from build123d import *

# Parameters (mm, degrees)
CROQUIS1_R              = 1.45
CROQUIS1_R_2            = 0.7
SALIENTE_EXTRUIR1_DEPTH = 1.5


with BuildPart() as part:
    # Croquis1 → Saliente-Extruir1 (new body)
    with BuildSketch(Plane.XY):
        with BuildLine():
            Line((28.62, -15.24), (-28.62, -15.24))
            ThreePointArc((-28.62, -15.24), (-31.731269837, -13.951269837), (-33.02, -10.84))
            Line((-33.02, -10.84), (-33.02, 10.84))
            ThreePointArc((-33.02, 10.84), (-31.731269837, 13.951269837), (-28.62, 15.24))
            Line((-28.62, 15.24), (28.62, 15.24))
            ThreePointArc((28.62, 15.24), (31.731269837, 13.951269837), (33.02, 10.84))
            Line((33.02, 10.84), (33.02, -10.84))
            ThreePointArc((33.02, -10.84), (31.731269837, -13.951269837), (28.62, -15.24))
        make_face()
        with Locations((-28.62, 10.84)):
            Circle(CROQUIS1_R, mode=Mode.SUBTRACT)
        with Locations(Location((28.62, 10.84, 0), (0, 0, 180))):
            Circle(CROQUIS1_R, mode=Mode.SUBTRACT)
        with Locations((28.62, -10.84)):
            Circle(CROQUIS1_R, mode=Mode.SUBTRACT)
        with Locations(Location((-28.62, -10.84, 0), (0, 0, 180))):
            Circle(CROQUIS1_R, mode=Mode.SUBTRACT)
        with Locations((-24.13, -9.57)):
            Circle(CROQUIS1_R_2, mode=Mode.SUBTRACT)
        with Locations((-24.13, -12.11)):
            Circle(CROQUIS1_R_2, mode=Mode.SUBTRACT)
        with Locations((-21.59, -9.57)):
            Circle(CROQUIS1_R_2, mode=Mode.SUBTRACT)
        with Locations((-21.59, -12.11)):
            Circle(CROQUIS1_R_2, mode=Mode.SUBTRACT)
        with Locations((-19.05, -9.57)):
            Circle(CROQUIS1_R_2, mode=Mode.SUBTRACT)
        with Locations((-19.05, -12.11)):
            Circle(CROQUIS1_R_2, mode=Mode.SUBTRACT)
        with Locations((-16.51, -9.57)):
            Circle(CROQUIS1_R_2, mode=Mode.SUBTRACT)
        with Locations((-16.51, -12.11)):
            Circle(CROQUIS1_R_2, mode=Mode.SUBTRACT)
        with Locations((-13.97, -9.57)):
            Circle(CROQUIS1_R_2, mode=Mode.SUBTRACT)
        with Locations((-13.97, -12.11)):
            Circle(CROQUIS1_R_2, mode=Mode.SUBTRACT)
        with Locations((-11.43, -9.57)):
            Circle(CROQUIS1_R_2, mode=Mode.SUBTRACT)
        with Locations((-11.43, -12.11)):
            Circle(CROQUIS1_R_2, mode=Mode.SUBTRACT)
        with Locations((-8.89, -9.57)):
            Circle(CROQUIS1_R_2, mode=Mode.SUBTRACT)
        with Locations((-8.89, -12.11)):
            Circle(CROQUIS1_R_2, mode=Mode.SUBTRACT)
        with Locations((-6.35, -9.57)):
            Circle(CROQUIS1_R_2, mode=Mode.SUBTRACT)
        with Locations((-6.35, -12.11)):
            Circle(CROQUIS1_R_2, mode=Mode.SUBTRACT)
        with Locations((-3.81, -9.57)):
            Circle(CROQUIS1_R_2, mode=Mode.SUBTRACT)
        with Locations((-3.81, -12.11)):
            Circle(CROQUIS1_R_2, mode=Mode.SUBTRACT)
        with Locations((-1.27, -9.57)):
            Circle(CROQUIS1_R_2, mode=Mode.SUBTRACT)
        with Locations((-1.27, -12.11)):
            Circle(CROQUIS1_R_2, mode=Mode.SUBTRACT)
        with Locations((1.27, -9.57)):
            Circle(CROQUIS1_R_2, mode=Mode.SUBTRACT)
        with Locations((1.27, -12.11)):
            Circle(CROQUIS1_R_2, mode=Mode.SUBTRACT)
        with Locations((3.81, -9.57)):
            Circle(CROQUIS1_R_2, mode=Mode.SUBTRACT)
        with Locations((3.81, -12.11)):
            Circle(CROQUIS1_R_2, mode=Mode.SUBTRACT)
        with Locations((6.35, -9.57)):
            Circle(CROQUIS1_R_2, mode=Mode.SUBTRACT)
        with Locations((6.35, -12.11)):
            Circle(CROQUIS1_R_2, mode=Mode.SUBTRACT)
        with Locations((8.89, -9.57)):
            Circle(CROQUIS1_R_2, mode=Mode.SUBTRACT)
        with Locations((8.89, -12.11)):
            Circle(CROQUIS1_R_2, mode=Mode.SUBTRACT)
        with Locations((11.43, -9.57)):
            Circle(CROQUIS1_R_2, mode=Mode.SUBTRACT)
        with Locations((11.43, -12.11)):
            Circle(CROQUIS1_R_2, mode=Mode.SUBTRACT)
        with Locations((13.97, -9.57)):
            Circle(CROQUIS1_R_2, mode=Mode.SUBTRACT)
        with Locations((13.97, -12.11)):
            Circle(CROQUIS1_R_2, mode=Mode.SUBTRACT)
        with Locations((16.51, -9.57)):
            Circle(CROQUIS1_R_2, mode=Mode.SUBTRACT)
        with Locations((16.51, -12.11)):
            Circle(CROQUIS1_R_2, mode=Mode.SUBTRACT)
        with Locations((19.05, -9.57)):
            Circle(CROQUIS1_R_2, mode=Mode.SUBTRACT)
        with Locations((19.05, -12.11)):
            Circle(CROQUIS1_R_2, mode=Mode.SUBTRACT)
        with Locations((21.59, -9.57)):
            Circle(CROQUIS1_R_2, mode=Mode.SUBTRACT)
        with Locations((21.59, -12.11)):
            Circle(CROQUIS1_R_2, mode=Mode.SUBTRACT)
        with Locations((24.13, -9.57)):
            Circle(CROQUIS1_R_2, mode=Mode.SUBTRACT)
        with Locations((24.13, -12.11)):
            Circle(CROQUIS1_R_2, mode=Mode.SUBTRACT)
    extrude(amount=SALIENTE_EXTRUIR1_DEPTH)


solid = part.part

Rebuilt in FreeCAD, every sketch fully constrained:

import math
import FreeCAD as App
import Part
import Sketcher
from FreeCAD import Vector
Q = App.Units.Quantity

doc = App.newDocument("Part")
body = doc.addObject("PartDesign::Body", "Body")

sketch1 = body.newObject("Sketcher::SketchObject", "Sketch")
sketch1.AttachmentSupport = (doc.getObject("XY_Plane"), [""])
sketch1.MapMode = "FlatFace"
sketch1.addGeometry(Part.LineSegment(Vector(-28.6, -15.2, 0), Vector(28.6, -15.2, 0)), False)
sketch1.addGeometry(Part.ArcOfCircle(Part.Circle(Vector(28.6, -10.8, 0), Vector(0, 0, 1), 4.4), math.radians(-90), math.radians(0)), False)
sketch1.addGeometry(Part.LineSegment(Vector(33, -10.8, 0), Vector(33, 10.8, 0)), False)
sketch1.addGeometry(Part.ArcOfCircle(Part.Circle(Vector(28.6, 10.8, 0), Vector(0, 0, 1), 4.4), math.radians(0), math.radians(90)), False)
sketch1.addGeometry(Part.LineSegment(Vector(28.6, 15.2, 0), Vector(-28.6, 15.2, 0)), False)
sketch1.addGeometry(Part.ArcOfCircle(Part.Circle(Vector(-28.6, 10.8, 0), Vector(0, 0, 1), 4.4), math.radians(90), math.radians(180)), False)
sketch1.addGeometry(Part.LineSegment(Vector(-33, 10.8, 0), Vector(-33, -10.8, 0)), False)
sketch1.addGeometry(Part.ArcOfCircle(Part.Circle(Vector(-28.6, -10.8, 0), Vector(0, 0, 1), 4.4), math.radians(-180), math.radians(-90)), False)
sketch1.addGeometry(Part.Circle(Vector(24.1, -12.1, 0), Vector(0, 0, 1), 0.7), False)
sketch1.addGeometry(Part.Circle(Vector(28.6, -10.8, 0), Vector(0, 0, 1), 1.4), False)
sketch1.addGeometry(Part.Circle(Vector(21.6, -12.1, 0), Vector(0, 0, 1), 0.7), False)
sketch1.addGeometry(Part.Circle(Vector(19.1, -12.1, 0), Vector(0, 0, 1), 0.7), False)
sketch1.addGeometry(Part.Circle(Vector(16.5, -12.1, 0), Vector(0, 0, 1), 0.7), False)
sketch1.addGeometry(Part.Circle(Vector(24.1, -9.6, 0), Vector(0, 0, 1), 0.7), False)
sketch1.addGeometry(Part.Circle(Vector(21.6, -9.6, 0), Vector(0, 0, 1), 0.7), False)
sketch1.addGeometry(Part.Circle(Vector(19.1, -9.6, 0), Vector(0, 0, 1), 0.7), False)
sketch1.addGeometry(Part.Circle(Vector(16.5, -9.6, 0), Vector(0, 0, 1), 0.7), False)
sketch1.addGeometry(Part.Circle(Vector(14, -12.1, 0), Vector(0, 0, 1), 0.7), False)
sketch1.addGeometry(Part.Circle(Vector(11.4, -12.1, 0), Vector(0, 0, 1), 0.7), False)
sketch1.addGeometry(Part.Circle(Vector(8.9, -12.1, 0), Vector(0, 0, 1), 0.7), False)
sketch1.addGeometry(Part.Circle(Vector(6.3, -12.1, 0), Vector(0, 0, 1), 0.7), False)
sketch1.addGeometry(Part.Circle(Vector(3.8, -12.1, 0), Vector(0, 0, 1), 0.7), False)
sketch1.addGeometry(Part.Circle(Vector(1.3, -12.1, 0), Vector(0, 0, 1), 0.7), False)
sketch1.addGeometry(Part.Circle(Vector(14, -9.6, 0), Vector(0, 0, 1), 0.7), False)
sketch1.addGeometry(Part.Circle(Vector(11.4, -9.6, 0), Vector(0, 0, 1), 0.7), False)
sketch1.addGeometry(Part.Circle(Vector(8.9, -9.6, 0), Vector(0, 0, 1), 0.7), False)
sketch1.addGeometry(Part.Circle(Vector(6.3, -9.6, 0), Vector(0, 0, 1), 0.7), False)
sketch1.addGeometry(Part.Circle(Vector(3.8, -9.6, 0), Vector(0, 0, 1), 0.7), False)
sketch1.addGeometry(Part.Circle(Vector(1.3, -9.6, 0), Vector(0, 0, 1), 0.7), False)
sketch1.addGeometry(Part.Circle(Vector(-1.3, -12.1, 0), Vector(0, 0, 1), 0.7), False)
sketch1.addGeometry(Part.Circle(Vector(-3.8, -12.1, 0), Vector(0, 0, 1), 0.7), False)
sketch1.addGeometry(Part.Circle(Vector(-6.3, -12.1, 0), Vector(0, 0, 1), 0.7), False)
sketch1.addGeometry(Part.Circle(Vector(-8.9, -12.1, 0), Vector(0, 0, 1), 0.7), False)
sketch1.addGeometry(Part.Circle(Vector(-11.4, -12.1, 0), Vector(0, 0, 1), 0.7), False)
sketch1.addGeometry(Part.Circle(Vector(-14, -12.1, 0), Vector(0, 0, 1), 0.7), False)
sketch1.addGeometry(Part.Circle(Vector(-1.3, -9.6, 0), Vector(0, 0, 1), 0.7), False)
sketch1.addGeometry(Part.Circle(Vector(-3.8, -9.6, 0), Vector(0, 0, 1), 0.7), False)
sketch1.addGeometry(Part.Circle(Vector(-6.3, -9.6, 0), Vector(0, 0, 1), 0.7), False)
sketch1.addGeometry(Part.Circle(Vector(-8.9, -9.6, 0), Vector(0, 0, 1), 0.7), False)
sketch1.addGeometry(Part.Circle(Vector(-11.4, -9.6, 0), Vector(0, 0, 1), 0.7), False)
sketch1.addGeometry(Part.Circle(Vector(-14, -9.6, 0), Vector(0, 0, 1), 0.7), False)
sketch1.addGeometry(Part.Circle(Vector(-16.5, -12.1, 0), Vector(0, 0, 1), 0.7), False)
sketch1.addGeometry(Part.Circle(Vector(-19.1, -12.1, 0), Vector(0, 0, 1), 0.7), False)
sketch1.addGeometry(Part.Circle(Vector(-21.6, -12.1, 0), Vector(0, 0, 1), 0.7), False)
sketch1.addGeometry(Part.Circle(Vector(-24.1, -12.1, 0), Vector(0, 0, 1), 0.7), False)
sketch1.addGeometry(Part.Circle(Vector(-28.6, -10.8, 0), Vector(0, 0, 1), 1.4), False)
sketch1.addGeometry(Part.Circle(Vector(-16.5, -9.6, 0), Vector(0, 0, 1), 0.7), False)
sketch1.addGeometry(Part.Circle(Vector(-19.1, -9.6, 0), Vector(0, 0, 1), 0.7), False)
sketch1.addGeometry(Part.Circle(Vector(-21.6, -9.6, 0), Vector(0, 0, 1), 0.7), False)
sketch1.addGeometry(Part.Circle(Vector(-24.1, -9.6, 0), Vector(0, 0, 1), 0.7), False)
sketch1.addGeometry(Part.Circle(Vector(28.6, 10.8, 0), Vector(0, 0, 1), 1.4), False)
sketch1.addGeometry(Part.Circle(Vector(-28.6, 10.8, 0), Vector(0, 0, 1), 1.4), False)
sketch1.addConstraint(Sketcher.Constraint("Tangent", 0, 2, 1, 1))
sketch1.addConstraint(Sketcher.Constraint("Tangent", 1, 2, 2, 1))
sketch1.addConstraint(Sketcher.Constraint("Tangent", 2, 2, 3, 1))
sketch1.addConstraint(Sketcher.Constraint("Tangent", 3, 2, 4, 1))
sketch1.addConstraint(Sketcher.Constraint("Tangent", 4, 2, 5, 1))
sketch1.addConstraint(Sketcher.Constraint("Tangent", 5, 2, 6, 1))
sketch1.addConstraint(Sketcher.Constraint("Tangent", 6, 2, 7, 1))
sketch1.addConstraint(Sketcher.Constraint("Tangent", 7, 2, 0, 1))
sketch1.addConstraint(Sketcher.Constraint("Horizontal", 0))
sketch1.addConstraint(Sketcher.Constraint("Vertical", 2))
sketch1.addConstraint(Sketcher.Constraint("Horizontal", 4))
sketch1.addConstraint(Sketcher.Constraint("Vertical", 6))
sketch1.addConstraint(Sketcher.Constraint("Coincident", 9, 3, 1, 3))
sketch1.addConstraint(Sketcher.Constraint("Coincident", 45, 3, 7, 3))
sketch1.addConstraint(Sketcher.Constraint("Coincident", 50, 3, 3, 3))
sketch1.addConstraint(Sketcher.Constraint("Coincident", 51, 3, 5, 3))
sketch1.addConstraint(Sketcher.Constraint("Equal", 1, 3))
sketch1.addConstraint(Sketcher.Constraint("Equal", 3, 5))
sketch1.addConstraint(Sketcher.Constraint("Equal", 5, 7))
sketch1.addConstraint(Sketcher.Constraint("Equal", 8, 10))
sketch1.addConstraint(Sketcher.Constraint("Equal", 10, 11))
sketch1.addConstraint(Sketcher.Constraint("Equal", 11, 12))
sketch1.addConstraint(Sketcher.Constraint("Equal", 12, 13))
sketch1.addConstraint(Sketcher.Constraint("Equal", 13, 14))
sketch1.addConstraint(Sketcher.Constraint("Equal", 14, 15))
sketch1.addConstraint(Sketcher.Constraint("Equal", 15, 16))
sketch1.addConstraint(Sketcher.Constraint("Equal", 16, 17))
sketch1.addConstraint(Sketcher.Constraint("Equal", 17, 18))
sketch1.addConstraint(Sketcher.Constraint("Equal", 18, 19))
sketch1.addConstraint(Sketcher.Constraint("Equal", 19, 20))
sketch1.addConstraint(Sketcher.Constraint("Equal", 20, 21))
sketch1.addConstraint(Sketcher.Constraint("Equal", 21, 22))
sketch1.addConstraint(Sketcher.Constraint("Equal", 22, 23))
sketch1.addConstraint(Sketcher.Constraint("Equal", 23, 24))
sketch1.addConstraint(Sketcher.Constraint("Equal", 24, 25))
sketch1.addConstraint(Sketcher.Constraint("Equal", 25, 26))
sketch1.addConstraint(Sketcher.Constraint("Equal", 26, 27))
sketch1.addConstraint(Sketcher.Constraint("Equal", 27, 28))
sketch1.addConstraint(Sketcher.Constraint("Equal", 28, 29))
sketch1.addConstraint(Sketcher.Constraint("Equal", 29, 30))
sketch1.addConstraint(Sketcher.Constraint("Equal", 30, 31))
sketch1.addConstraint(Sketcher.Constraint("Equal", 31, 32))
sketch1.addConstraint(Sketcher.Constraint("Equal", 32, 33))
sketch1.addConstraint(Sketcher.Constraint("Equal", 33, 34))
sketch1.addConstraint(Sketcher.Constraint("Equal", 34, 35))
sketch1.addConstraint(Sketcher.Constraint("Equal", 35, 36))
sketch1.addConstraint(Sketcher.Constraint("Equal", 36, 37))
sketch1.addConstraint(Sketcher.Constraint("Equal", 37, 38))
sketch1.addConstraint(Sketcher.Constraint("Equal", 38, 39))
sketch1.addConstraint(Sketcher.Constraint("Equal", 39, 40))
sketch1.addConstraint(Sketcher.Constraint("Equal", 40, 41))
sketch1.addConstraint(Sketcher.Constraint("Equal", 41, 42))
sketch1.addConstraint(Sketcher.Constraint("Equal", 42, 43))
sketch1.addConstraint(Sketcher.Constraint("Equal", 43, 44))
sketch1.addConstraint(Sketcher.Constraint("Equal", 9, 45))
sketch1.addConstraint(Sketcher.Constraint("Equal", 44, 46))
sketch1.addConstraint(Sketcher.Constraint("Equal", 46, 47))
sketch1.addConstraint(Sketcher.Constraint("Equal", 47, 48))
sketch1.addConstraint(Sketcher.Constraint("Equal", 48, 49))
sketch1.addConstraint(Sketcher.Constraint("Equal", 45, 50))
sketch1.addConstraint(Sketcher.Constraint("Equal", 50, 51))
sketch1.addConstraint(Sketcher.Constraint("Symmetric", 1, 3, 5, 3, -1, 1))
sketch1.addConstraint(Sketcher.Constraint("Symmetric", 22, 3, 29, 3, -2))
sketch1.addConstraint(Sketcher.Constraint("Symmetric", 21, 3, 30, 3, -2))
sketch1.addConstraint(Sketcher.Constraint("Symmetric", 20, 3, 31, 3, -2))
sketch1.addConstraint(Sketcher.Constraint("Symmetric", 19, 3, 32, 3, -2))
sketch1.addConstraint(Sketcher.Constraint("Symmetric", 18, 3, 33, 3, -2))
sketch1.addConstraint(Sketcher.Constraint("Symmetric", 17, 3, 34, 3, -2))
sketch1.addConstraint(Sketcher.Constraint("Symmetric", 28, 3, 35, 3, -2))
sketch1.addConstraint(Sketcher.Constraint("Symmetric", 27, 3, 36, 3, -2))
sketch1.addConstraint(Sketcher.Constraint("Symmetric", 26, 3, 37, 3, -2))
sketch1.addConstraint(Sketcher.Constraint("Symmetric", 25, 3, 38, 3, -2))
sketch1.addConstraint(Sketcher.Constraint("Symmetric", 24, 3, 39, 3, -2))
sketch1.addConstraint(Sketcher.Constraint("Symmetric", 23, 3, 40, 3, -2))
sketch1.addConstraint(Sketcher.Constraint("Symmetric", 12, 3, 41, 3, -2))
sketch1.addConstraint(Sketcher.Constraint("Symmetric", 11, 3, 42, 3, -2))
sketch1.addConstraint(Sketcher.Constraint("Symmetric", 10, 3, 43, 3, -2))
sketch1.addConstraint(Sketcher.Constraint("Symmetric", 8, 3, 44, 3, -2))
sketch1.addConstraint(Sketcher.Constraint("Symmetric", 16, 3, 46, 3, -2))
sketch1.addConstraint(Sketcher.Constraint("Symmetric", 15, 3, 47, 3, -2))
sketch1.addConstraint(Sketcher.Constraint("Symmetric", 14, 3, 48, 3, -2))
sketch1.addConstraint(Sketcher.Constraint("Symmetric", 13, 3, 49, 3, -2))
sketch1.addConstraint(Sketcher.Constraint("Horizontal", 8, 3, 10, 3))
sketch1.addConstraint(Sketcher.Constraint("Horizontal", 10, 3, 11, 3))
sketch1.addConstraint(Sketcher.Constraint("Horizontal", 11, 3, 12, 3))
sketch1.addConstraint(Sketcher.Constraint("Horizontal", 13, 3, 14, 3))
sketch1.addConstraint(Sketcher.Constraint("Horizontal", 14, 3, 15, 3))
sketch1.addConstraint(Sketcher.Constraint("Horizontal", 15, 3, 16, 3))
sketch1.addConstraint(Sketcher.Constraint("Horizontal", 12, 3, 17, 3))
sketch1.addConstraint(Sketcher.Constraint("Horizontal", 17, 3, 18, 3))
sketch1.addConstraint(Sketcher.Constraint("Horizontal", 18, 3, 19, 3))
sketch1.addConstraint(Sketcher.Constraint("Horizontal", 19, 3, 20, 3))
sketch1.addConstraint(Sketcher.Constraint("Horizontal", 20, 3, 21, 3))
sketch1.addConstraint(Sketcher.Constraint("Horizontal", 21, 3, 22, 3))
sketch1.addConstraint(Sketcher.Constraint("Horizontal", 16, 3, 23, 3))
sketch1.addConstraint(Sketcher.Constraint("Horizontal", 23, 3, 24, 3))
sketch1.addConstraint(Sketcher.Constraint("Horizontal", 24, 3, 25, 3))
sketch1.addConstraint(Sketcher.Constraint("Horizontal", 25, 3, 26, 3))
sketch1.addConstraint(Sketcher.Constraint("Horizontal", 26, 3, 27, 3))
sketch1.addConstraint(Sketcher.Constraint("Horizontal", 27, 3, 28, 3))
sketch1.addConstraint(Sketcher.Constraint("Vertical", 8, 3, 13, 3))
sketch1.addConstraint(Sketcher.Constraint("Vertical", 10, 3, 14, 3))
sketch1.addConstraint(Sketcher.Constraint("Vertical", 11, 3, 15, 3))
sketch1.addConstraint(Sketcher.Constraint("Vertical", 12, 3, 16, 3))
sketch1.addConstraint(Sketcher.Constraint("Vertical", 17, 3, 23, 3))
sketch1.addConstraint(Sketcher.Constraint("Vertical", 18, 3, 24, 3))
sketch1.addConstraint(Sketcher.Constraint("Vertical", 19, 3, 25, 3))
sketch1.addConstraint(Sketcher.Constraint("Vertical", 20, 3, 26, 3))
sketch1.addConstraint(Sketcher.Constraint("Vertical", 21, 3, 27, 3))
sketch1.addConstraint(Sketcher.Constraint("Vertical", 22, 3, 28, 3))
sketch1.addConstraint(Sketcher.Constraint("Diameter", 8, Q("1.4 mm")))
sketch1.addConstraint(Sketcher.Constraint("Diameter", 9, Q("2.9 mm")))
sketch1.addConstraint(Sketcher.Constraint("Radius", 1, Q("4.4 mm")))
sketch1.addConstraint(Sketcher.Constraint("DistanceX", 0, 1, 0, 2, Q("57.24 mm")))
sketch1.addConstraint(Sketcher.Constraint("DistanceY", 2, 1, 2, 2, Q("21.68 mm")))
sketch1.addConstraint(Sketcher.Constraint("DistanceX", 21, 3, 12, 3, Q("12.7 mm")))
sketch1.addConstraint(Sketcher.Constraint("DistanceX", 22, 3, 17, 3, Q("12.7 mm")))
sketch1.addConstraint(Sketcher.Constraint("DistanceX", 33, 3, 22, 3, Q("12.7 mm")))
sketch1.addConstraint(Sketcher.Constraint("DistanceX", -1, 1, 8, 3, Q("24.13 mm")))
sketch1.addConstraint(Sketcher.Constraint("DistanceY", 8, 3, -1, 1, Q("12.11 mm")))
sketch1.addConstraint(Sketcher.Constraint("DistanceX", -1, 1, 10, 3, Q("21.59 mm")))
sketch1.addConstraint(Sketcher.Constraint("DistanceX", -1, 1, 11, 3, Q("19.05 mm")))
sketch1.addConstraint(Sketcher.Constraint("DistanceX", -1, 1, 12, 3, Q("16.51 mm")))
sketch1.addConstraint(Sketcher.Constraint("DistanceY", 13, 3, -1, 1, Q("9.57 mm")))
sketch1.addConstraint(Sketcher.Constraint("DistanceX", -1, 1, 17, 3, Q("13.97 mm")))
sketch1.addConstraint(Sketcher.Constraint("DistanceX", -1, 1, 19, 3, Q("8.89 mm")))
sketch1.addConstraint(Sketcher.Constraint("DistanceX", -1, 1, 20, 3, Q("6.35 mm")))
pad1 = body.newObject("PartDesign::Pad", "Pad")
pad1.Profile = sketch1
pad1.Length = 1.5

doc.recompute()
